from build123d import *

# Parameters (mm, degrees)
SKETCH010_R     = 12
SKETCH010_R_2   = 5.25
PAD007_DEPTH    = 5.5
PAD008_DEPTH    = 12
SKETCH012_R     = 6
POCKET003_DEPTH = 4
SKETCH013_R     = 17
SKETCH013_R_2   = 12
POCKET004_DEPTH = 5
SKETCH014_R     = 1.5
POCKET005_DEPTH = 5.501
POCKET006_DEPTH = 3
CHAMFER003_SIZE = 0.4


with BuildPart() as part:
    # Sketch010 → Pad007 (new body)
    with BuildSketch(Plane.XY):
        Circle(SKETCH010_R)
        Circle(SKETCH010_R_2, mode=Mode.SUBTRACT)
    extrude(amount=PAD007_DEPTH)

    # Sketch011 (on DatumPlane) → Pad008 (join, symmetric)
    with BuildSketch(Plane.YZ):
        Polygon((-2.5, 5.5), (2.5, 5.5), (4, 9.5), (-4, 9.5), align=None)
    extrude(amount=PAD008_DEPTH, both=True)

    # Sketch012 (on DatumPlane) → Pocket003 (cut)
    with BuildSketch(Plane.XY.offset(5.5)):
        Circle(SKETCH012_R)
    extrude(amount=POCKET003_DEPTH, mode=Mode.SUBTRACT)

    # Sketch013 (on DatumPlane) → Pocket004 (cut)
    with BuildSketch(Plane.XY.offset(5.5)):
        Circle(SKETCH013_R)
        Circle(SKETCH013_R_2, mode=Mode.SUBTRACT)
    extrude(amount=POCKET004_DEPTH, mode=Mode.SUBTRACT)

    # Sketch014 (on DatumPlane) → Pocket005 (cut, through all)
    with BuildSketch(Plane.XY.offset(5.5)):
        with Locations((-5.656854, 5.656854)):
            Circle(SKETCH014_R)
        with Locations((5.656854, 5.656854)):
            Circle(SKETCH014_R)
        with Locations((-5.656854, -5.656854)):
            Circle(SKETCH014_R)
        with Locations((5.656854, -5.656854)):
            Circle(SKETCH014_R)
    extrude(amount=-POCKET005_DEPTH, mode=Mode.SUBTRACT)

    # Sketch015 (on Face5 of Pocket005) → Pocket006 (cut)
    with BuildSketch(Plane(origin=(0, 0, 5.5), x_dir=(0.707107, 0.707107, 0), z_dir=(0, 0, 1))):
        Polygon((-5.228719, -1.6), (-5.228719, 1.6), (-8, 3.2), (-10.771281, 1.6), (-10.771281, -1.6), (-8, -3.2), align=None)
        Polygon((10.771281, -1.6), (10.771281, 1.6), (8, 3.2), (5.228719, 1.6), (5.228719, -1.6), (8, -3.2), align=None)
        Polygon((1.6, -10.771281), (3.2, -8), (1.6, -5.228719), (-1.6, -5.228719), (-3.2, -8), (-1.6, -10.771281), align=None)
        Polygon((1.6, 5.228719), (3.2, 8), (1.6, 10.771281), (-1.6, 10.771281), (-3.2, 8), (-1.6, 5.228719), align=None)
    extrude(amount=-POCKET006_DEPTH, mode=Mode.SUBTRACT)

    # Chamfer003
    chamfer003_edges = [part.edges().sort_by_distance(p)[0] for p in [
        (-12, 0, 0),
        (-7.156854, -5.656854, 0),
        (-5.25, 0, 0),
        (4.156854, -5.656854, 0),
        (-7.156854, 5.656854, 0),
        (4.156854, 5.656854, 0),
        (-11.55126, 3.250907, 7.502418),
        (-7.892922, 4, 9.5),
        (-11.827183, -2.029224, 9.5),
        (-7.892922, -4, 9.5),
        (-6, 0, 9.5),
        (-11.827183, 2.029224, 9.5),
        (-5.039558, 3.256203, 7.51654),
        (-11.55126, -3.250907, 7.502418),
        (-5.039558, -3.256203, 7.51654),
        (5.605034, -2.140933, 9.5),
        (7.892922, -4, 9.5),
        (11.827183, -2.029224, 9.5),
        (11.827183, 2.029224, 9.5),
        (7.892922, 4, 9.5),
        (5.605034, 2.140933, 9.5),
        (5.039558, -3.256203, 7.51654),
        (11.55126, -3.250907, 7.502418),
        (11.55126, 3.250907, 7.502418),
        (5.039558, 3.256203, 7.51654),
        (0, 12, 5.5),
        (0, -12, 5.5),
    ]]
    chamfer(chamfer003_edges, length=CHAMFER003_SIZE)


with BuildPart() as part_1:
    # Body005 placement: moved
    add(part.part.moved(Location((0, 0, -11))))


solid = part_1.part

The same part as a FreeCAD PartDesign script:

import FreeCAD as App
import Part
import Sketcher
Q = App.Units.Quantity


def edges_at(feature, points):
    """Names of the edges that pass closest to the given points."""
    edges = feature.Shape.Edges
    near = lambda p: min(range(len(edges)), key=lambda i: edges[i].distToShape(Part.Vertex(*p))[0])
    return sorted({f"Edge{near(p) + 1}" for p in points})

doc = App.newDocument("Part")
params = doc.addObject("Spreadsheet::Sheet", "Params")
for row, (alias, value) in enumerate([
    ("sketch1_diameter", "24 mm"),
    ("sketch1_diameter2", "10.5 mm"),
    ("pad1_length", "5.5 mm"),
    ("sketch2_width", "5 mm"),
    ("sketch2_width2", "8 mm"),
    ("pad2_length", "24 mm"),
    ("sketch3_diameter", "12 mm"),
    ("pocket1_length", "4 mm"),
    ("sketch4_diameter", "34 mm"),
    ("sketch4_diameter2", "24 mm"),
    ("pocket2_length", "5 mm"),
    ("sketch5_diameter", "3 mm"),
    ("sketch6_length", "3.2 mm"),
    ("pocket4_length", "3 mm"),
    ("chamfer_size", "0.4 mm"),
], start=1):
    params.set(f"A{row}", alias)
    params.set(f"B{row}", "=" + value)
    params.setAlias(f"B{row}", alias)

body = doc.addObject("PartDesign::Body", "Body")

# Sketch on XY plane
sketch1 = body.newObject("Sketcher::SketchObject", "Sketch")
sketch1.AttachmentSupport = (doc.getObject("XY_Plane"), [""])
sketch1.MapMode = "FlatFace"
sketch1.addGeometry([
    Part.Circle(App.Vector(0, 0, 0), App.Vector(0, 0, 1), 12),
    Part.Circle(App.Vector(0, 0, 0), App.Vector(0, 0, 1), 5),
], False)
sketch1.addConstraint([
    Sketcher.Constraint("Coincident", 0, 3, -1, 1),
    Sketcher.Constraint("Coincident", 1, 3, -1, 1),
    Sketcher.Constraint("Diameter", 0, Q("24 mm")),
    Sketcher.Constraint("Diameter", 1, Q("10.5 mm")),
])
sketch1.setExpression("Constraints[2]", "Params.sketch1_diameter")
sketch1.setExpression("Constraints[3]", "Params.sketch1_diameter2")
pad1 = body.newObject("PartDesign::Pad", "Pad")
pad1.Profile = sketch1
pad1.setExpression("Length", "Params.pad1_length")

# Sketch on YZ plane
sketch2 = body.newObject("Sketcher::SketchObject", "Sketch001")
sketch2.AttachmentSupport = (doc.getObject("YZ_Plane"), [""])
sketch2.MapMode = "FlatFace"
sketch2.addGeometry([
    Part.LineSegment(App.Vector(-2.5, 5.5, 0), App.Vector(2.5, 5.5, 0)),
    Part.LineSegment(App.Vector(2.5, 5.5, 0), App.Vector(4, 9.5, 0)),
    Part.LineSegment(App.Vector(4, 9.5, 0), App.Vector(-4, 9.5, 0)),
    Part.LineSegment(App.Vector(-4, 9.5, 0), App.Vector(-2.5, 5.5, 0)),
], False)
sketch2.addConstraint([
    Sketcher.Constraint("Coincident", 0, 2, 1, 1),
    Sketcher.Constraint("Coincident", 1, 2, 2, 1),
    Sketcher.Constraint("Coincident", 2, 2, 3, 1),
    Sketcher.Constraint("Coincident", 3, 2, 0, 1),
    Sketcher.Constraint("Horizontal", 0),
    Sketcher.Constraint("Horizontal", 2),
    Sketcher.Constraint("Equal", 1, 3),
    Sketcher.Constraint("DistanceX", 0, 1, 0, 2, Q("5 mm")),
    Sketcher.Constraint("DistanceX", 2, 2, 2, 1, Q("8 mm")),
    Sketcher.Constraint("DistanceX", -1, 1, 1, 2, Q("4 mm")),
    Sketcher.Constraint("DistanceY", 0, 2, 1, 2, Q("4 mm")),
    Sketcher.Constraint("DistanceY", -1, 1, 0, 2, Q("5.5 mm")),
])
sketch2.setExpression("Constraints[7]", "Params.sketch2_width")
sketch2.setExpression("Constraints[8]", "Params.sketch2_width2")
pad2 = body.newObject("PartDesign::Pad", "Pad001")
pad2.Profile = sketch2
pad2.setExpression("Length", "Params.pad2_length")
pad2.Midplane = True

# Sketch on XY plane
sketch3 = body.newObject("Sketcher::SketchObject", "Sketch002")
sketch3.AttachmentSupport = (doc.getObject("XY_Plane"), [""])
sketch3.MapMode = "FlatFace"
sketch3.AttachmentOffset = App.Placement(App.Vector(0, 0, 5.5), App.Rotation())
sketch3.addGeometry(Part.Circle(App.Vector(0, 0, 0), App.Vector(0, 0, 1), 6), False)
sketch3.addConstraint([
    Sketcher.Constraint("Coincident", 0, 3, -1, 1),
    Sketcher.Constraint("Diameter", 0, Q("12 mm")),
])
sketch3.setExpression("Constraints[1]", "Params.sketch3_diameter")
pocket1 = body.newObject("PartDesign::Pocket", "Pocket")
pocket1.Profile = sketch3
pocket1.setExpression("Length", "Params.pocket1_length")
pocket1.Reversed = True

# Sketch on XY plane
sketch4 = body.newObject("Sketcher::SketchObject", "Sketch003")
sketch4.AttachmentSupport = (doc.getObject("XY_Plane"), [""])
sketch4.MapMode = "FlatFace"
sketch4.AttachmentOffset = App.Placement(App.Vector(0, 0, 5.5), App.Rotation())
sketch4.addGeometry([
    Part.Circle(App.Vector(0, 0, 0), App.Vector(0, 0, 1), 17),
    Part.Circle(App.Vector(0, 0, 0), App.Vector(0, 0, 1), 12),
], False)
sketch4.addConstraint([
    Sketcher.Constraint("Coincident", 0, 3, -1, 1),
    Sketcher.Constraint("Coincident", 1, 3, -1, 1),
    Sketcher.Constraint("Diameter", 0, Q("34 mm")),
    Sketcher.Constraint("Diameter", 1, Q("24 mm")),
])
sketch4.setExpression("Constraints[2]", "Params.sketch4_diameter")
sketch4.setExpression("Constraints[3]", "Params.sketch4_diameter2")
pocket2 = body.newObject("PartDesign::Pocket", "Pocket001")
pocket2.Profile = sketch4
pocket2.setExpression("Length", "Params.pocket2_length")
pocket2.Reversed = True

# Sketch on XY plane
sketch5 = body.newObject("Sketcher::SketchObject", "Sketch004")
sketch5.AttachmentSupport = (doc.getObject("XY_Plane"), [""])
sketch5.MapMode = "FlatFace"
sketch5.AttachmentOffset = App.Placement(App.Vector(0, 0, 5.5), App.Rotation())
sketch5.addGeometry([
    Part.Circle(App.Vector(-5.7, 5.7, 0), App.Vector(0, 0, 1), 1.5),
    Part.Circle(App.Vector(5.7, 5.7, 0), App.Vector(0, 0, 1), 1.5),
    Part.Circle(App.Vector(-5.7, -5.7, 0), App.Vector(0, 0, 1), 1.5),
    Part.Circle(App.Vector(5.7, -5.7, 0), App.Vector(0, 0, 1), 1.5),
], False)
sketch5.addConstraint([
    Sketcher.Constraint("Equal", 0, 1),
    Sketcher.Constraint("Equal", 1, 2),
    Sketcher.Constraint("Equal", 2, 3),
    Sketcher.Constraint("Symmetric", 1, 3, 2, 3, -1, 1),
    Sketcher.Constraint("Symmetric", 0, 3, 3, 3, -1, 1),
    Sketcher.Constraint("Symmetric", 0, 3, 1, 3, -2),
    Sketcher.Constraint("Diameter", 0, Q("3 mm")),
    Sketcher.Constraint("DistanceX", 0, 3, -1, 1, Q("5.656854 mm")),
    Sketcher.Constraint("DistanceY", -1, 1, 0, 3, Q("5.656854 mm")),
])
sketch5.setExpression("Constraints[6]", "Params.sketch5_diameter")
pocket3 = body.newObject("PartDesign::Pocket", "Pocket002")
pocket3.Profile = sketch5
pocket3.Type = "ThroughAll"

# Sketch on XY plane
sketch6 = body.newObject("Sketcher::SketchObject", "Sketch005")
sketch6.AttachmentSupport = (doc.getObject("XY_Plane"), [""])
sketch6.MapMode = "FlatFace"
sketch6.AttachmentOffset = App.Placement(App.Vector(0, 0, 5.5), App.Rotation())
sketch6.addGeometry([
    Part.LineSegment(App.Vector(-2.6, -4.8, 0), App.Vector(-4.8, -2.6, 0)),  # 0
    Part.LineSegment(App.Vector(-4.8, -2.6, 0), App.Vector(-7.9, -3.4, 0)),  # 1
    Part.LineSegment(App.Vector(-7.9, -3.4, 0), App.Vector(-8.7, -6.5, 0)),  # 2
    Part.LineSegment(App.Vector(-8.7, -6.5, 0), App.Vector(-6.5, -8.7, 0)),  # 3
    Part.LineSegment(App.Vector(-6.5, -8.7, 0), App.Vector(-3.4, -7.9, 0)),  # 4
    Part.LineSegment(App.Vector(-3.4, -7.9, 0), App.Vector(-2.6, -4.8, 0)),  # 5
    Part.LineSegment(App.Vector(8.7, 6.5, 0), App.Vector(6.5, 8.7, 0)),  # 6
    Part.LineSegment(App.Vector(6.5, 8.7, 0), App.Vector(3.4, 7.9, 0)),  # 7
    Part.LineSegment(App.Vector(3.4, 7.9, 0), App.Vector(2.6, 4.8, 0)),  # 8
    Part.LineSegment(App.Vector(2.6, 4.8, 0), App.Vector(4.8, 2.6, 0)),  # 9
    Part.LineSegment(App.Vector(4.8, 2.6, 0), App.Vector(7.9, 3.4, 0)),  # 10
    Part.LineSegment(App.Vector(7.9, 3.4, 0), App.Vector(8.7, 6.5, 0)),  # 11
    Part.LineSegment(App.Vector(8.7, -6.5, 0), App.Vector(7.9, -3.4, 0)),  # 12
    Part.LineSegment(App.Vector(7.9, -3.4, 0), App.Vector(4.8, -2.6, 0)),  # 13
    Part.LineSegment(App.Vector(4.8, -2.6, 0), App.Vector(2.6, -4.8, 0)),  # 14
    Part.LineSegment(App.Vector(2.6, -4.8, 0), App.Vector(3.4, -7.9, 0)),  # 15
    Part.LineSegment(App.Vector(3.4, -7.9, 0), App.Vector(6.5, -8.7, 0)),  # 16
    Part.LineSegment(App.Vector(6.5, -8.7, 0), App.Vector(8.7, -6.5, 0)),  # 17
    Part.LineSegment(App.Vector(-2.6, 4.8, 0), App.Vector(-3.4, 7.9, 0)),  # 18
    Part.LineSegment(App.Vector(-3.4, 7.9, 0), App.Vector(-6.5, 8.7, 0)),  # 19
    Part.LineSegment(App.Vector(-6.5, 8.7, 0), App.Vector(-8.7, 6.5, 0)),  # 20
    Part.LineSegment(App.Vector(-8.7, 6.5, 0), App.Vector(-7.9, 3.4, 0)),  # 21
    Part.LineSegment(App.Vector(-7.9, 3.4, 0), App.Vector(-4.8, 2.6, 0)),  # 22
    Part.LineSegment(App.Vector(-4.8, 2.6, 0), App.Vector(-2.6, 4.8, 0)),  # 23
], False)
sketch6.addConstraint([
    Sketcher.Constraint("Coincident", 0, 2, 1, 1),
    Sketcher.Constraint("Coincident", 1, 2, 2, 1),
    Sketcher.Constraint("Coincident", 2, 2, 3, 1),
    Sketcher.Constraint("Coincident", 3, 2, 4, 1),
    Sketcher.Constraint("Coincident", 4, 2, 5, 1),
    Sketcher.Constraint("Coincident", 5, 2, 0, 1),
    Sketcher.Constraint("Coincident", 6, 2, 7, 1),
    Sketcher.Constraint("Coincident", 7, 2, 8, 1),
    Sketcher.Constraint("Coincident", 8, 2, 9, 1),
    Sketcher.Constraint("Coincident", 9, 2, 10, 1),
    Sketcher.Constraint("Coincident", 10, 2, 11, 1),
    Sketcher.Constraint("Coincident", 11, 2, 6, 1),
    Sketcher.Constraint("Coincident", 12, 2, 13, 1),
    Sketcher.Constraint("Coincident", 13, 2, 14, 1),
    Sketcher.Constraint("Coincident", 14, 2, 15, 1),
    Sketcher.Constraint("Coincident", 15, 2, 16, 1),
    Sketcher.Constraint("Coincident", 16, 2, 17, 1),
    Sketcher.Constraint("Coincident", 17, 2, 12, 1),
    Sketcher.Constraint("Coincident", 18, 2, 19, 1),
    Sketcher.Constraint("Coincident", 19, 2, 20, 1),
    Sketcher.Constraint("Coincident", 20, 2, 21, 1),
    Sketcher.Constraint("Coincident", 21, 2, 22, 1),
    Sketcher.Constraint("Coincident", 22, 2, 23, 1),
    Sketcher.Constraint("Coincident", 23, 2, 18, 1),
    Sketcher.Constraint("Symmetric", 3, 2, 6, 2, -1, 1),
    Sketcher.Constraint("Symmetric", 4, 2, 7, 2, -1, 1),
    Sketcher.Constraint("Symmetric", 5, 2, 8, 2, -1, 1),
    Sketcher.Constraint("Symmetric", 0, 2, 9, 2, -1, 1),
    Sketcher.Constraint("Symmetric", 1, 2, 10, 2, -1, 1),
    Sketcher.Constraint("Symmetric", 2, 2, 11, 2, -1, 1),
    Sketcher.Constraint("Symmetric", 15, 2, 18, 2, -1, 1),
    Sketcher.Constraint("Symmetric", 16, 2, 19, 2, -1, 1),
    Sketcher.Constraint("Symmetric", 17, 2, 20, 2, -1, 1),
    Sketcher.Constraint("Symmetric", 12, 2, 21, 2, -1, 1),
    Sketcher.Constraint("Symmetric", 13, 2, 22, 2, -1, 1),
    Sketcher.Constraint("Symmetric", 14, 2, 23, 2, -1, 1),
    Sketcher.Constraint("Symmetric", 1, 2, 12, 2, -2),
    Sketcher.Constraint("Symmetric", 0, 2, 13, 2, -2),
    Sketcher.Constraint("Symmetric", 5, 2, 14, 2, -2),
    Sketcher.Constraint("Symmetric", 4, 2, 15, 2, -2),
    Sketcher.Constraint("Symmetric", 3, 2, 16, 2, -2),
    Sketcher.Constraint("Symmetric", 2, 2, 17, 2, -2),
    Sketcher.Constraint("Parallel", 0, 3),
    Sketcher.Constraint("Parallel", 1, 4),
    Sketcher.Constraint("Parallel", 2, 5),
    Sketcher.Constraint("Perpendicular", 10, 12),
    Sketcher.Constraint("Perpendicular", 9, 14),
    Sketcher.Constraint("Equal", 0, 1),
    Sketcher.Constraint("Equal", 1, 2),
    Sketcher.Constraint("Equal", 2, 3),
    Sketcher.Constraint("Angle", 1, Q("-165.000003 deg")),
    Sketcher.Constraint("Distance", 0, Q("3.2 mm")),
    Sketcher.Constraint("DistanceY", 0, 2, -1, 1, Q("2.565892 mm")),
    Sketcher.Constraint("DistanceX", 5, 2, -1, 1, Q("2.565892 mm")),
])
sketch6.setExpression("Constraints[51]", "Params.sketch6_length")
pocket4 = body.newObject("PartDesign::Pocket", "Pocket003")
pocket4.Profile = sketch6
pocket4.setExpression("Length", "Params.pocket4_length")
doc.recompute()

chamfer = body.newObject("PartDesign::Chamfer", "Chamfer")
chamfer.Base = (pocket4, edges_at(pocket4, [
    (-12, 0, 0),
    (-7.157, -5.657, 0),
    (-5.25, 0, 0),
    (4.157, -5.657, 0),
    (-7.157, 5.657, 0),
    (4.157, 5.657, 0),
    (-11.551, 3.251, 7.502),
    (-7.893, 4, 9.5),
    (-12, 0, 9.5),
    (-7.893, -4, 9.5),
    (-6, 0, 9.5),
    (-12, 0, 9.5),
    (-5.04, 3.256, 7.517),
    (-11.551, -3.251, 7.502),
    (-5.04, -3.256, 7.517),
    (6, 0, 9.5),
    (7.893, -4, 9.5),
    (11.827, -2.029, 9.5),
    (11.827, 2.029, 9.5),
    (7.893, 4, 9.5),
    (6, 0, 9.5),
    (5.04, -3.256, 7.517),
    (11.551, -3.251, 7.502),
    (11.551, 3.251, 7.502),
    (5.04, 3.256, 7.517),
    (0, 12, 5.5),
    (0, -12, 5.5),
]))
chamfer.setExpression("Size", "Params.chamfer_size")
body2 = doc.addObject("PartDesign::Body", "Body001")
doc.recompute()

body.Placement = App.Placement(App.Vector(0, 0, -11), App.Rotation(App.Vector(0, 0, 1), 0))
boolean = body2.newObject("PartDesign::Boolean", "Boolean")
boolean.Type = "Fuse"
boolean.addObjects([body])

doc.recompute()
